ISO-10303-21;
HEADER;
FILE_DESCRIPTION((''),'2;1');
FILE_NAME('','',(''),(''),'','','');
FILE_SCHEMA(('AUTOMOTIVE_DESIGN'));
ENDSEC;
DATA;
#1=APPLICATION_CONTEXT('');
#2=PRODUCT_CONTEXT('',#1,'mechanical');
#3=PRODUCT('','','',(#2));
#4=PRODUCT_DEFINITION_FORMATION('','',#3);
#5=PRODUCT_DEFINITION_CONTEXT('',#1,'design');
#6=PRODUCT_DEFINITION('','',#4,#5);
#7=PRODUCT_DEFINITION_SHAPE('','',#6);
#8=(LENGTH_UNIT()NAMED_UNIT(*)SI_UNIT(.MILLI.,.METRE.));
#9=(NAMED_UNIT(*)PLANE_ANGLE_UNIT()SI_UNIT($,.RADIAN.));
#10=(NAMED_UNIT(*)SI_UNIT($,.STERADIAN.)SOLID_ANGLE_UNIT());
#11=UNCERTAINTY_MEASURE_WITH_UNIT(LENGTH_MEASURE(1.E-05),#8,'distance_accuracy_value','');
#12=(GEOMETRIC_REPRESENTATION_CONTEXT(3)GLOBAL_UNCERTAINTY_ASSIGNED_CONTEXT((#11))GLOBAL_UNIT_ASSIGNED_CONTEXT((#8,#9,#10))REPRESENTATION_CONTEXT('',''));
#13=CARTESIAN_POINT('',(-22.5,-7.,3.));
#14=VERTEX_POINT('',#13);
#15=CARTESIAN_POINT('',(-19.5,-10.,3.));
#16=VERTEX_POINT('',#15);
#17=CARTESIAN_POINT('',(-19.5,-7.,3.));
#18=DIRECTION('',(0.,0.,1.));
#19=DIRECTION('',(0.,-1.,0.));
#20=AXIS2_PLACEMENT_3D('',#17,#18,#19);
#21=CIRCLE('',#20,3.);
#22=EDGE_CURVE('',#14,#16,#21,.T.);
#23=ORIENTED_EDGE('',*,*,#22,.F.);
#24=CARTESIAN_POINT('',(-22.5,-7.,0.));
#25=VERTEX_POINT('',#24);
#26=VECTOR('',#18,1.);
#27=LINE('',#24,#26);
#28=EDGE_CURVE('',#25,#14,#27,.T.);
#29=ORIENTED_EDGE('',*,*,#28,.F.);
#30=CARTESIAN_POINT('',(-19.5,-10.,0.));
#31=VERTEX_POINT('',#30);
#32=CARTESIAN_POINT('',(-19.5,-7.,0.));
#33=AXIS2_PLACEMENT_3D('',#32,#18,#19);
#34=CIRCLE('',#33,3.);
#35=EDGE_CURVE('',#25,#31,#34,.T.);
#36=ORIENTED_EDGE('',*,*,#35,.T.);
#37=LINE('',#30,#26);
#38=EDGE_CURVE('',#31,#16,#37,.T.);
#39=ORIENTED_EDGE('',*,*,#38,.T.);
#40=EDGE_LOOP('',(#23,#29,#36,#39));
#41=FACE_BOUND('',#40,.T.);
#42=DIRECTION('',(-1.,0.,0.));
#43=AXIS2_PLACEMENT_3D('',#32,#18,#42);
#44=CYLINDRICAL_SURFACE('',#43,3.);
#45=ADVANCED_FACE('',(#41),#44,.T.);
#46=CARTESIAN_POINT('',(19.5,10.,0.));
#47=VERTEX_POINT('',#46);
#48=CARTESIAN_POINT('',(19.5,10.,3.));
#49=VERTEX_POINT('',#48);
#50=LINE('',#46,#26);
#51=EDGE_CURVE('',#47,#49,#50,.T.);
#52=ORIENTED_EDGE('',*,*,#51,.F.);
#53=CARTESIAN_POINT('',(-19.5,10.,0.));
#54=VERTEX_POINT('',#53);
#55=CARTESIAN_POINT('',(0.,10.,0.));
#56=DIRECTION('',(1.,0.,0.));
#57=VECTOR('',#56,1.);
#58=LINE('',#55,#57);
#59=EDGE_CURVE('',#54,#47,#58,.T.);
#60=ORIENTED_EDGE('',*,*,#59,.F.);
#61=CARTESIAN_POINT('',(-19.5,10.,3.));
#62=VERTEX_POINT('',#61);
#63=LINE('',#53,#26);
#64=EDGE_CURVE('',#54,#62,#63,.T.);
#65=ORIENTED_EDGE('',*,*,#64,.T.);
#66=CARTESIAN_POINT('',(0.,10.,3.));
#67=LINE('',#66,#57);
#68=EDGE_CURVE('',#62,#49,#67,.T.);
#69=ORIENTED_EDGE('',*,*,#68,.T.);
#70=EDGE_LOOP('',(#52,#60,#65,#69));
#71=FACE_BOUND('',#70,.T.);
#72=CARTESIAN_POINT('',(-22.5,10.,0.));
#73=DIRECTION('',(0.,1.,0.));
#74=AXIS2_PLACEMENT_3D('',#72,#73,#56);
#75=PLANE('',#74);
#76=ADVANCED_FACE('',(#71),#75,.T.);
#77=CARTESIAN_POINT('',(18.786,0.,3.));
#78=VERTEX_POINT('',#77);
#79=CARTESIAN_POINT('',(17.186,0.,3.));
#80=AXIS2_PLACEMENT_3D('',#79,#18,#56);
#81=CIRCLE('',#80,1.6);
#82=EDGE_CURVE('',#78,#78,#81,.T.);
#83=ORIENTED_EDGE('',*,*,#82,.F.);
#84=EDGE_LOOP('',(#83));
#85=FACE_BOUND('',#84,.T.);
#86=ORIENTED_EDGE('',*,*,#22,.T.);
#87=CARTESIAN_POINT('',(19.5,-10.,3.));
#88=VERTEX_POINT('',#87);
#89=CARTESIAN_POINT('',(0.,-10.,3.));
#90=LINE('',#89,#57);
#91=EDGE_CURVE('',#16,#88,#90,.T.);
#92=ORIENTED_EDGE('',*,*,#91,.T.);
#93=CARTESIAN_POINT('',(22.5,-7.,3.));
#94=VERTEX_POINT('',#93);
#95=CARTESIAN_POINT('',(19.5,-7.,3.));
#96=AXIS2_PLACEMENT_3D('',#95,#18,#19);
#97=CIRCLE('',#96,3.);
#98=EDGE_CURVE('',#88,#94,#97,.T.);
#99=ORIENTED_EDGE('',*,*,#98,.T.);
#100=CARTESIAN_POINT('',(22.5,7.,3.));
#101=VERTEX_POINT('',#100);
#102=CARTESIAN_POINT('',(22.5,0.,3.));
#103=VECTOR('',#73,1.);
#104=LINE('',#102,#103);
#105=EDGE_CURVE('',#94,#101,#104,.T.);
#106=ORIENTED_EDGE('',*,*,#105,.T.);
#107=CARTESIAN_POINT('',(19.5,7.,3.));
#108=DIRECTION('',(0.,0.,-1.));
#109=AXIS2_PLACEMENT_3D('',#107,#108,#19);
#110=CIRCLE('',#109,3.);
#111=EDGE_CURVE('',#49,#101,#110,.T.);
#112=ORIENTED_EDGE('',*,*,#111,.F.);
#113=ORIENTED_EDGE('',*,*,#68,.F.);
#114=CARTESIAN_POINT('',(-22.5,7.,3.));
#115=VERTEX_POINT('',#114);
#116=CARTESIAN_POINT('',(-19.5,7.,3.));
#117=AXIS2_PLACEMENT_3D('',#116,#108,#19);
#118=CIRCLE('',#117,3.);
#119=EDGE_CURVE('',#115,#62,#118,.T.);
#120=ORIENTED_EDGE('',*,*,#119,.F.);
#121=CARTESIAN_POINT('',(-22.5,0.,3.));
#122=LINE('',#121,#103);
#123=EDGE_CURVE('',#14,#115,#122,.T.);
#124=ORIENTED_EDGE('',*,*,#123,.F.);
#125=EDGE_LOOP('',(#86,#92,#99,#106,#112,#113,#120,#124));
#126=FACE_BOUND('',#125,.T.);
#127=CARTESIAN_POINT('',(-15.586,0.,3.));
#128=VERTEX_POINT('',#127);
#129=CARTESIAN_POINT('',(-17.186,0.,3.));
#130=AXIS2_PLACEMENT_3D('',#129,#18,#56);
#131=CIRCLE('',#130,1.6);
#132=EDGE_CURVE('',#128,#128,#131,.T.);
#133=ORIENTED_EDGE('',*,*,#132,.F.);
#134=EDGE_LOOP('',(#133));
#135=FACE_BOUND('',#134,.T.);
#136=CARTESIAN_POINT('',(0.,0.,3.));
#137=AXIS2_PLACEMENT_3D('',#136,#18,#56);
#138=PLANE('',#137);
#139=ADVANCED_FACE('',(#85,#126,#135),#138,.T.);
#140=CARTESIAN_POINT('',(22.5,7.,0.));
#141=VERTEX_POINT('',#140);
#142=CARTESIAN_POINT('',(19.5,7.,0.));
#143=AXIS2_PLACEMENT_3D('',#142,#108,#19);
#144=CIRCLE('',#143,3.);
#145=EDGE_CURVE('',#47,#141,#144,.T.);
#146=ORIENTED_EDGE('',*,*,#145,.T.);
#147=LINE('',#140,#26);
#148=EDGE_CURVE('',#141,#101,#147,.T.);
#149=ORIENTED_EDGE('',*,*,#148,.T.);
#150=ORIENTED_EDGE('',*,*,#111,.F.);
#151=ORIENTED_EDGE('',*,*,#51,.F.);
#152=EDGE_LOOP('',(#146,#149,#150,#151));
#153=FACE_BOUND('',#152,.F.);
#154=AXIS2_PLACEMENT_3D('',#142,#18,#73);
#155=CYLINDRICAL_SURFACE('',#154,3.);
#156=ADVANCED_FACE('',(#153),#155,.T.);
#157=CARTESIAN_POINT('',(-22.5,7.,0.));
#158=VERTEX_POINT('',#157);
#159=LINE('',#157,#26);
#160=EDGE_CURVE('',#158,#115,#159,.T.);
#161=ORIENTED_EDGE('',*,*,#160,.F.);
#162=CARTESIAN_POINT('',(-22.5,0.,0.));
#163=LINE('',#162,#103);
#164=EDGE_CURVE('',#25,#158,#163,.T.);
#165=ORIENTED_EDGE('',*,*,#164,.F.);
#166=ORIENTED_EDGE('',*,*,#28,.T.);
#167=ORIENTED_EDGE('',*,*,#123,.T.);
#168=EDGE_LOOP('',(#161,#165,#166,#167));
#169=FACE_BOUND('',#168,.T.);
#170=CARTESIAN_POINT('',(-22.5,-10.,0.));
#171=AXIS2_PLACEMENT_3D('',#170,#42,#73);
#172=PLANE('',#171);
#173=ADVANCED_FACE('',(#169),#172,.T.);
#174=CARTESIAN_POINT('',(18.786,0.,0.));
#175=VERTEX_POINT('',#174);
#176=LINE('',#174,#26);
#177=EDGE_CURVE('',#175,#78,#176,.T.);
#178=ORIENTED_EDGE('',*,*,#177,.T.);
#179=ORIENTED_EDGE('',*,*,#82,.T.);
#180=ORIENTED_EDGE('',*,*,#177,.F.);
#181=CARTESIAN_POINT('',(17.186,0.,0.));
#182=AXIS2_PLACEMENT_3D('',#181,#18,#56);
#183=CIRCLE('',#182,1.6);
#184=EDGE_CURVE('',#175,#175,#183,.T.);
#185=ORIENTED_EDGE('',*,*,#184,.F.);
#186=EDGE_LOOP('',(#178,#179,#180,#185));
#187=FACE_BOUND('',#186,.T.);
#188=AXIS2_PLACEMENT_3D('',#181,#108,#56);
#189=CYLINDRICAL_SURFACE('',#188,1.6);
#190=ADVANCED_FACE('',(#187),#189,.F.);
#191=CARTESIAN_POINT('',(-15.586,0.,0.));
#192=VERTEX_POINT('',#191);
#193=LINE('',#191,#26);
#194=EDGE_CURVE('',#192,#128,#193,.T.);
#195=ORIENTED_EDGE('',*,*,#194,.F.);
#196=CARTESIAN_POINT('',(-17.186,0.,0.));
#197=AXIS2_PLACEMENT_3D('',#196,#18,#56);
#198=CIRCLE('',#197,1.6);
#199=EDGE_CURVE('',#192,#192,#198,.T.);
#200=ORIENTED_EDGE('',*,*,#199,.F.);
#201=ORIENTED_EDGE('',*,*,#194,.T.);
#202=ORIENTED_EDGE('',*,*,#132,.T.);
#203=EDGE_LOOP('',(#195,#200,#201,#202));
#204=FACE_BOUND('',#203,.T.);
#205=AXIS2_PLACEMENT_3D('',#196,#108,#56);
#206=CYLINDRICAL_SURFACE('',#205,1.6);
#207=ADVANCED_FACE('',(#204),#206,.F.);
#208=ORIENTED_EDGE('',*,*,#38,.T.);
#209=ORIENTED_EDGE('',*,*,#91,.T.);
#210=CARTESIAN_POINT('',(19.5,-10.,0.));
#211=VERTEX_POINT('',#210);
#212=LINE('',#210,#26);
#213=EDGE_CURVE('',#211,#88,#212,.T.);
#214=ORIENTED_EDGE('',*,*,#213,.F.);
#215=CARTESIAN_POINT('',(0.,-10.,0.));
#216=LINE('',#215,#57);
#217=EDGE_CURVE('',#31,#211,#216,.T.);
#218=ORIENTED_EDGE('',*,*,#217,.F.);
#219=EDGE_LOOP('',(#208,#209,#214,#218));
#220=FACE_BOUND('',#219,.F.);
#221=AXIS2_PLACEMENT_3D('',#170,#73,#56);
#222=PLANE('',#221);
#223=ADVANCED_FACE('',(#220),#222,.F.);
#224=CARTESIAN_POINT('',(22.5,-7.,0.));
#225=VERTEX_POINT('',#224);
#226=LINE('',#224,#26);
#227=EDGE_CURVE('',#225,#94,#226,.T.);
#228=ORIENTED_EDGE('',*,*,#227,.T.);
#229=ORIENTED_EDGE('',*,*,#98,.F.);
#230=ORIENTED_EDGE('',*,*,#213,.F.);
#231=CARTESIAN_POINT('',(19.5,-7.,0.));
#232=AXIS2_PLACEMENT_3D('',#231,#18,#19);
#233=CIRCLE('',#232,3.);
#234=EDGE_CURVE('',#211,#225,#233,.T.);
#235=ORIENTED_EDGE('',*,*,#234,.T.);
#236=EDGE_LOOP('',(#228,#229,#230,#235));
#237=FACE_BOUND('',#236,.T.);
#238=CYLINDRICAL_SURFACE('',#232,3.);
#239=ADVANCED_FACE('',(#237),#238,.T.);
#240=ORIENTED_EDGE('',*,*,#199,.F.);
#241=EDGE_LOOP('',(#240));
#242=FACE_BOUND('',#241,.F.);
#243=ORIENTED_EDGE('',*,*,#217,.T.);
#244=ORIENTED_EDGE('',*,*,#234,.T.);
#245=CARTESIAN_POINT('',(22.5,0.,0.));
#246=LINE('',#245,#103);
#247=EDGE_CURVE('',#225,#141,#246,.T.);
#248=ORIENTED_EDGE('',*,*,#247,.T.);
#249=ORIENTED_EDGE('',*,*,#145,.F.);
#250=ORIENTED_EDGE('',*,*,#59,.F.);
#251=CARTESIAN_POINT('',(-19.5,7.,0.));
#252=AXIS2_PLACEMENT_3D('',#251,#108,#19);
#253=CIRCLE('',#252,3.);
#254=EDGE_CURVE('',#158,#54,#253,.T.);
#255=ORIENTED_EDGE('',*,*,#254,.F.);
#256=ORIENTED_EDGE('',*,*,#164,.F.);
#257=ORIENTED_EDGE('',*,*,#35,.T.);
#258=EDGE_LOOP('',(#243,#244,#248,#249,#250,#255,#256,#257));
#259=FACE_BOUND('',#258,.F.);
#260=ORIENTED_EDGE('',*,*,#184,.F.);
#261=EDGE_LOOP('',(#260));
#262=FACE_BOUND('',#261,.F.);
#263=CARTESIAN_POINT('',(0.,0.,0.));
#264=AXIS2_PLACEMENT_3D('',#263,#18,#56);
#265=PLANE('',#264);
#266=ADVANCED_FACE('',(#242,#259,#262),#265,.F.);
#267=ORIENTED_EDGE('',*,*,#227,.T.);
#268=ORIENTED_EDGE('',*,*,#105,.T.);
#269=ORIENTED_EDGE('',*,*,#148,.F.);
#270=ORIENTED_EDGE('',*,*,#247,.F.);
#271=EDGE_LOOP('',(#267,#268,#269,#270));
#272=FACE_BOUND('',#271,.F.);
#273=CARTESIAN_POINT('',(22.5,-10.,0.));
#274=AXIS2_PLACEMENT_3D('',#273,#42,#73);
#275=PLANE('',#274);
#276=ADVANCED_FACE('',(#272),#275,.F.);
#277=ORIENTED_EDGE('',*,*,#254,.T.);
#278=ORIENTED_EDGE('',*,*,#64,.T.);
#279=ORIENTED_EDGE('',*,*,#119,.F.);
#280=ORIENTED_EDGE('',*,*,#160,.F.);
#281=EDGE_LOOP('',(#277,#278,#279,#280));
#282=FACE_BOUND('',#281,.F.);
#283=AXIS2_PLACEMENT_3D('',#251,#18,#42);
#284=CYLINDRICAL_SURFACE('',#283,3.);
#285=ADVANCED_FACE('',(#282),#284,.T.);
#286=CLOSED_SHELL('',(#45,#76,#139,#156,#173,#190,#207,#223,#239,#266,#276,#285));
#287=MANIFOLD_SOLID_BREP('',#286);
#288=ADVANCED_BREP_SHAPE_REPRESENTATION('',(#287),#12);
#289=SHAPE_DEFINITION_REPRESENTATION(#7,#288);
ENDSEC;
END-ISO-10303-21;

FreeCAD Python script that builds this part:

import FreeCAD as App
import Part
import Sketcher

V = App.Vector


def edges_at(feature, points):
    """Names of the edges that pass closest to the given points."""
    edges = feature.Shape.Edges
    near = lambda p: min(range(len(edges)), key=lambda i: edges[i].distToShape(Part.Vertex(*p))[0])
    return sorted({f"Edge{near(p) + 1}" for p in points})

doc = App.newDocument("Part")
body = doc.addObject("PartDesign::Body", "Body")

# Sketch on XY plane
sketch1 = doc.addObject("Sketcher::SketchObject", "Sketch")
body.addObject(sketch1)
sketch1.AttachmentSupport = (doc.XY_Plane, [""])
sketch1.MapMode = "FlatFace"
sketch1.addGeometry(Part.LineSegment(V(-22.5, 10, 0), V(-22.5, -10, 0)), False)
sketch1.addGeometry(Part.LineSegment(V(-22.5, -10, 0), V(22.5, -10, 0)), False)
sketch1.addGeometry(Part.LineSegment(V(22.5, -10, 0), V(22.5, 10, 0)), False)
sketch1.addGeometry(Part.LineSegment(V(22.5, 10, 0), V(-22.5, 10, 0)), False)
sketch1.addGeometry(Part.Circle(V(-17.2, 0, 0), V(0, 0, 1), 1.6), False)
sketch1.addGeometry(Part.Circle(V(17.2, 0, 0), V(0, 0, 1), 1.6), False)
sketch1.addConstraint(Sketcher.Constraint("Coincident", 0, 2, 1, 1))
sketch1.addConstraint(Sketcher.Constraint("Coincident", 1, 2, 2, 1))
sketch1.addConstraint(Sketcher.Constraint("Coincident", 2, 2, 3, 1))
sketch1.addConstraint(Sketcher.Constraint("Coincident", 3, 2, 0, 1))
sketch1.addConstraint(Sketcher.Constraint("Vertical", 0))
sketch1.addConstraint(Sketcher.Constraint("Horizontal", 1))
sketch1.addConstraint(Sketcher.Constraint("Vertical", 2))
sketch1.addConstraint(Sketcher.Constraint("Horizontal", 3))
sketch1.addConstraint(Sketcher.Constraint("Equal", 4, 5))
sketch1.addConstraint(Sketcher.Constraint("Symmetric", 4, 3, 5, 3, -1, 1))
sketch1.addConstraint(Sketcher.Constraint("Symmetric", 0, 2, 2, 2, -1, 1))
sketch1.addConstraint(Sketcher.Constraint("PointOnObject", 4, 3, -1))
sketch1.addConstraint(Sketcher.Constraint("Diameter", 4, 3.2))
sketch1.addConstraint(Sketcher.Constraint("DistanceX", 1, 1, 1, 2, 45.0))
sketch1.addConstraint(Sketcher.Constraint("DistanceY", 0, 2, 0, 1, 20.0))
sketch1.addConstraint(Sketcher.Constraint("DistanceX", 4, 3, -1, 1, 17.186))
pad1 = doc.addObject("PartDesign::Pad", "Pad")
body.addObject(pad1)
pad1.Profile = sketch1
pad1.Length = 3
doc.recompute()

fillet = doc.addObject("PartDesign::Fillet", "Fillet")
body.addObject(fillet)
fillet.Base = (pad1, edges_at(pad1, [
    (22.5, 10, 1.5),
    (22.5, -10, 1.5),
    (-22.5, -10, 1.5),
    (-22.5, 10, 1.5),
]))
fillet.Radius = 3

doc.recompute()
